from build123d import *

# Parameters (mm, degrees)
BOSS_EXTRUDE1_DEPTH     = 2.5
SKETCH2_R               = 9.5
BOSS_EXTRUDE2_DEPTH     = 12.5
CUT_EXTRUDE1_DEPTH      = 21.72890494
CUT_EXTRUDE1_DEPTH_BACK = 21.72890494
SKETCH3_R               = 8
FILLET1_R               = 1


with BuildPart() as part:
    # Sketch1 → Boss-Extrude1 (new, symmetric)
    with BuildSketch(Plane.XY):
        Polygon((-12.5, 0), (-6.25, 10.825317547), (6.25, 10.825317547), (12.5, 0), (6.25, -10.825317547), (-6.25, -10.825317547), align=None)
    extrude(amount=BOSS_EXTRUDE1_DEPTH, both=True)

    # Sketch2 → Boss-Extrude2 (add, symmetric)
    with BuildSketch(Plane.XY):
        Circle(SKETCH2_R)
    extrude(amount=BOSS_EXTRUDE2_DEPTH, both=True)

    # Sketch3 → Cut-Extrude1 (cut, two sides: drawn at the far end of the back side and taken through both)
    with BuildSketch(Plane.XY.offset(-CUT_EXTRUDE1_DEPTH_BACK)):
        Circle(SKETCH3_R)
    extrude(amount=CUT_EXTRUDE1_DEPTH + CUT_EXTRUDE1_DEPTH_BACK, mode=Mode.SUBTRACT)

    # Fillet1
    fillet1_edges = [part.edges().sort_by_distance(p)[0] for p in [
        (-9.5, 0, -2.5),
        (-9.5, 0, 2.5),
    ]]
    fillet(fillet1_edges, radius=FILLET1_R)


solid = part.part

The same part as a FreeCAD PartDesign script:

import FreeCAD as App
import Part
import Sketcher
Q = App.Units.Quantity


def edges_at(feature, points):
    """Names of the edges that pass closest to the given points."""
    edges = feature.Shape.Edges
    near = lambda p: min(range(len(edges)), key=lambda i: edges[i].distToShape(Part.Vertex(*p))[0])
    return sorted({f"Edge{near(p) + 1}" for p in points})


def add_polygon(sketch, points):
    """Adds a closed chain of lines whose ends are joined by coincident constraints."""
    first, n = sketch.GeometryCount, len(points)
    for a, b in zip(points, points[1:] + points[:1]):
        sketch.addGeometry(Part.LineSegment(App.Vector(*a, 0), App.Vector(*b, 0)), False)
    for i in range(n):
        sketch.addConstraint(Sketcher.Constraint("Coincident", first + i, 2, first + (i + 1) % n, 1))

doc = App.newDocument("Part")
body = doc.addObject("PartDesign::Body", "Body")

# Sketch on XY plane
sketch1 = doc.addObject("Sketcher::SketchObject", "Sketch")
body.addObject(sketch1)
sketch1.AttachmentSupport = (doc.XY_Plane, [""])
sketch1.MapMode = "FlatFace"
add_polygon(sketch1, [(-6, 11), (-12, 0), (-6, -11), (6, -11), (12, 0), (6, 11)])  # lines 0-5
sketch1.addConstraint(Sketcher.Constraint("Horizontal", 2))
sketch1.addConstraint(Sketcher.Constraint("Horizontal", 5))
sketch1.addConstraint(Sketcher.Constraint("Symmetric", 0, 2, 3, 2, -1, 1))
sketch1.addConstraint(Sketcher.Constraint("Symmetric", 1, 2, 4, 2, -1, 1))
sketch1.addConstraint(Sketcher.Constraint("PointOnObject", 0, 2, -1))
sketch1.addConstraint(Sketcher.Constraint("Parallel", 0, 3))
sketch1.addConstraint(Sketcher.Constraint("Vertical", 2, 2, 4, 2))
sketch1.addConstraint(Sketcher.Constraint("Angle", 0, Q("-120 deg")))
sketch1.addConstraint(Sketcher.Constraint("DistanceX", 2, 1, 2, 2, Q("12.5 mm")))
sketch1.addConstraint(Sketcher.Constraint("DistanceX", 0, 2, 3, 2, Q("25 mm")))
pad1 = doc.addObject("PartDesign::Pad", "Pad")
body.addObject(pad1)
pad1.Profile = sketch1
pad1.Length = 5
pad1.Midplane = True

# Sketch on XY plane
sketch2 = doc.addObject("Sketcher::SketchObject", "Sketch001")
body.addObject(sketch2)
sketch2.AttachmentSupport = (doc.XY_Plane, [""])
sketch2.MapMode = "FlatFace"
sketch2.addGeometry(Part.Circle(App.Vector(0, 0, 0), App.Vector(0, 0, 1), 10), False)
sketch2.addConstraint(Sketcher.Constraint("Coincident", 0, 3, -1, 1))
sketch2.addConstraint(Sketcher.Constraint("Diameter", 0, Q("19 mm")))
pad2 = doc.addObject("PartDesign::Pad", "Pad001")
body.addObject(pad2)
pad2.Profile = sketch2
pad2.Length = 25
pad2.Midplane = True

# Sketch on XY plane
sketch3 = doc.addObject("Sketcher::SketchObject", "Sketch002")
body.addObject(sketch3)
sketch3.AttachmentSupport = (doc.XY_Plane, [""])
sketch3.MapMode = "FlatFace"
sketch3.addGeometry(Part.Circle(App.Vector(0, 0, 0), App.Vector(0, 0, 1), 8), False)
sketch3.addConstraint(Sketcher.Constraint("Coincident", 0, 3, -1, 1))
sketch3.addConstraint(Sketcher.Constraint("Diameter", 0, Q("16 mm")))
pocket1 = doc.addObject("PartDesign::Pocket", "Pocket")
body.addObject(pocket1)
pocket1.Profile = sketch3
pocket1.Type = "ThroughAll"
pocket1.Midplane = True
doc.recompute()

fillet = doc.addObject("PartDesign::Fillet", "Fillet")
body.addObject(fillet)
fillet.Base = (pocket1, edges_at(pocket1, [(-9.5, 0, -2.5), (-9.5, 0, 2.5)]))
fillet.Radius = 1

doc.recompute()
